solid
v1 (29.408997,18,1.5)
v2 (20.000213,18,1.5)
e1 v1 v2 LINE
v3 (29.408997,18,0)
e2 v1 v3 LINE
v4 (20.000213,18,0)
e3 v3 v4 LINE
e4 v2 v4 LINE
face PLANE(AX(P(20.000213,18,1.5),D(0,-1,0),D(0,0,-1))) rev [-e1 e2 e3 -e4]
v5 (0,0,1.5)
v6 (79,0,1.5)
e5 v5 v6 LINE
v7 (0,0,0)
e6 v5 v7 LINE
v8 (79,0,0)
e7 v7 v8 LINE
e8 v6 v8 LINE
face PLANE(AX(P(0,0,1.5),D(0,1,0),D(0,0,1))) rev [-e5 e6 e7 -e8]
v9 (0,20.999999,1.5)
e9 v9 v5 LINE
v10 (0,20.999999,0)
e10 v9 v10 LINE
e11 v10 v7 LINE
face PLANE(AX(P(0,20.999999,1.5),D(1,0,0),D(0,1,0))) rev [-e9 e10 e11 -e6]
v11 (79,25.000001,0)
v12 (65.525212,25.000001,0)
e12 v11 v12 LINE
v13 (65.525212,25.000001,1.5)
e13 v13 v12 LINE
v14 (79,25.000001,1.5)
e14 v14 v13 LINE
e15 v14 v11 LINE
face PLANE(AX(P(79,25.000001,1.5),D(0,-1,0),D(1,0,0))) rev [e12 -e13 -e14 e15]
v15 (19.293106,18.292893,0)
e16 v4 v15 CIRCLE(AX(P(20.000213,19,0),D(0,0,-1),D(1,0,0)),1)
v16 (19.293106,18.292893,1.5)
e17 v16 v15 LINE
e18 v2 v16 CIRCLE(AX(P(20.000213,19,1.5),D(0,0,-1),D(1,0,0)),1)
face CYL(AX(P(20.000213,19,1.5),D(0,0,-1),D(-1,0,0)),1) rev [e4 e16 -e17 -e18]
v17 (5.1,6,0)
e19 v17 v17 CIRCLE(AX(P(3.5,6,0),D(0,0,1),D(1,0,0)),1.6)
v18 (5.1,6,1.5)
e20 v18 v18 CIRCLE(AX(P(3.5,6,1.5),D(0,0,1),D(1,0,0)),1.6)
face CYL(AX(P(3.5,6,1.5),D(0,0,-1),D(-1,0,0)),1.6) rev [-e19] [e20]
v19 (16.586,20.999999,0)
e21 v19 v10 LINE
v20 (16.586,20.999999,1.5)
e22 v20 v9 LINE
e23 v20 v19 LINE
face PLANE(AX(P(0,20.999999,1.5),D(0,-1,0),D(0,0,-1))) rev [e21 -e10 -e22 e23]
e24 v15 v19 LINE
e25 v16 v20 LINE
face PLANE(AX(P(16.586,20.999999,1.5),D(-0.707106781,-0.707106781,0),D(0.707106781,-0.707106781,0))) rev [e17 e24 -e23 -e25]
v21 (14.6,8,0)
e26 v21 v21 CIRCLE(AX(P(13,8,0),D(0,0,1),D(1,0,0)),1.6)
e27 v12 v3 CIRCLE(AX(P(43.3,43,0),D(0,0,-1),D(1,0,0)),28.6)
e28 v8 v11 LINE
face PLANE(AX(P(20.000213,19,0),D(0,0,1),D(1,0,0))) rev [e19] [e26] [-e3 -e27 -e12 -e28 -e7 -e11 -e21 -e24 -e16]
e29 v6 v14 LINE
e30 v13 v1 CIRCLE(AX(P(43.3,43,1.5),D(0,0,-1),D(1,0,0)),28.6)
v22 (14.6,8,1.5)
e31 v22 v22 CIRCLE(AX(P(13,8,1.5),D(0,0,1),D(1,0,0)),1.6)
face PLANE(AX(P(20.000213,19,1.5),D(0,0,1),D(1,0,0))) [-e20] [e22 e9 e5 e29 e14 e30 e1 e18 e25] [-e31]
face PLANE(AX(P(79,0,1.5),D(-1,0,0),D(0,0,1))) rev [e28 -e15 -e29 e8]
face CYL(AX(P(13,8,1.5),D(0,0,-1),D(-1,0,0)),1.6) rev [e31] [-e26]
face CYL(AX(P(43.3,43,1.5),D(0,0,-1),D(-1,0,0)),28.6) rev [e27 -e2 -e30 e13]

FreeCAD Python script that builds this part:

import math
import FreeCAD as App
import Part
import Sketcher

V = App.Vector
Q = App.Units.Quantity

doc = App.newDocument("Part")
body = doc.addObject("PartDesign::Body", "Body")

sketch1 = body.newObject("Sketcher::SketchObject", "Sketch")
sketch1.AttachmentSupport = (doc.getObject("XY_Plane"), [""])
sketch1.MapMode = "FlatFace"
sketch1.addGeometry(Part.LineSegment(V(0, 21, 0), V(0, 0, 0)), False)
sketch1.addGeometry(Part.LineSegment(V(0, 0, 0), V(79, 0, 0)), False)
sketch1.addGeometry(Part.LineSegment(V(79, 0, 0), V(79, 25, 0)), False)
sketch1.addGeometry(Part.LineSegment(V(79, 25, 0), V(65.5, 25, 0)), False)
sketch1.addGeometry(Part.ArcOfCircle(Part.Circle(V(43.3, 43, 0), V(0, 0, 1), 28.6), math.radians(-119), math.radians(-39)), False)
sketch1.addGeometry(Part.LineSegment(V(29.4, 18, 0), V(20, 18, 0)), False)
sketch1.addGeometry(Part.ArcOfCircle(Part.Circle(V(20, 19, 0), V(0, 0, 1), 1), math.radians(-135), math.radians(-90)), False)
sketch1.addGeometry(Part.LineSegment(V(19.3, 18.3, 0), V(16.6, 21, 0)), False)
sketch1.addGeometry(Part.LineSegment(V(16.6, 21, 0), V(0, 21, 0)), False)
sketch1.addGeometry(Part.Circle(V(3.5, 6, 0), V(0, 0, 1), 1.6), False)
sketch1.addGeometry(Part.Circle(V(13, 8, 0), V(0, 0, 1), 1.6), False)
sketch1.addConstraint(Sketcher.Constraint("Coincident", 0, 2, 1, 1))
sketch1.addConstraint(Sketcher.Constraint("Coincident", 1, 2, 2, 1))
sketch1.addConstraint(Sketcher.Constraint("Coincident", 2, 2, 3, 1))
sketch1.addConstraint(Sketcher.Constraint("Coincident", 3, 2, 4, 2))
sketch1.addConstraint(Sketcher.Constraint("Coincident", 4, 1, 5, 1))
sketch1.addConstraint(Sketcher.Constraint("Tangent", 5, 2, 6, 2))
sketch1.addConstraint(Sketcher.Constraint("Tangent", 6, 1, 7, 1))
sketch1.addConstraint(Sketcher.Constraint("Coincident", 7, 2, 8, 1))
sketch1.addConstraint(Sketcher.Constraint("Coincident", 8, 2, 0, 1))
sketch1.addConstraint(Sketcher.Constraint("Vertical", 0))
sketch1.addConstraint(Sketcher.Constraint("Horizontal", 1))
sketch1.addConstraint(Sketcher.Constraint("Vertical", 2))
sketch1.addConstraint(Sketcher.Constraint("Horizontal", 3))
sketch1.addConstraint(Sketcher.Constraint("Horizontal", 5))
sketch1.addConstraint(Sketcher.Constraint("Horizontal", 8))
sketch1.addConstraint(Sketcher.Constraint("Coincident", 0, 2, -1, 1))
sketch1.addConstraint(Sketcher.Constraint("Equal", 9, 10))
sketch1.addConstraint(Sketcher.Constraint("Radius", 6, Q("1 mm")))
sketch1.addConstraint(Sketcher.Constraint("Diameter", 9, Q("3.2 mm")))
sketch1.addConstraint(Sketcher.Constraint("Radius", 4, Q("28.6 mm")))
sketch1.addConstraint(Sketcher.Constraint("DistanceX", 1, 1, 1, 2, Q("79 mm")))
sketch1.addConstraint(Sketcher.Constraint("DistanceY", 0, 2, 0, 1, Q("20.999999 mm")))
sketch1.addConstraint(Sketcher.Constraint("DistanceY", 2, 1, 2, 2, Q("25.000001 mm")))
sketch1.addConstraint(Sketcher.Constraint("Angle", 7, Q("135 deg")))
sketch1.addConstraint(Sketcher.Constraint("DistanceY", -1, 1, 4, 3, Q("43 mm")))
sketch1.addConstraint(Sketcher.Constraint("DistanceY", -1, 1, 6, 3, Q("19 mm")))
sketch1.addConstraint(Sketcher.Constraint("DistanceY", -1, 1, 9, 3, Q("6 mm")))
sketch1.addConstraint(Sketcher.Constraint("DistanceX", -1, 1, 10, 3, Q("13 mm")))
sketch1.addConstraint(Sketcher.Constraint("DistanceY", -1, 1, 10, 3, Q("8 mm")))
sketch1.addConstraint(Sketcher.Constraint("DistanceX", -1, 1, 4, 3, Q("43.3 mm")))
sketch1.addConstraint(Sketcher.Constraint("DistanceX", -1, 1, 9, 3, Q("3.5 mm")))
sketch1.addConstraint(Sketcher.Constraint("DistanceX", 8, 2, 8, 1, Q("16.586 mm")))
pad1 = body.newObject("PartDesign::Pad", "Pad")
pad1.Profile = sketch1
pad1.Length = 1.5

doc.recompute()
